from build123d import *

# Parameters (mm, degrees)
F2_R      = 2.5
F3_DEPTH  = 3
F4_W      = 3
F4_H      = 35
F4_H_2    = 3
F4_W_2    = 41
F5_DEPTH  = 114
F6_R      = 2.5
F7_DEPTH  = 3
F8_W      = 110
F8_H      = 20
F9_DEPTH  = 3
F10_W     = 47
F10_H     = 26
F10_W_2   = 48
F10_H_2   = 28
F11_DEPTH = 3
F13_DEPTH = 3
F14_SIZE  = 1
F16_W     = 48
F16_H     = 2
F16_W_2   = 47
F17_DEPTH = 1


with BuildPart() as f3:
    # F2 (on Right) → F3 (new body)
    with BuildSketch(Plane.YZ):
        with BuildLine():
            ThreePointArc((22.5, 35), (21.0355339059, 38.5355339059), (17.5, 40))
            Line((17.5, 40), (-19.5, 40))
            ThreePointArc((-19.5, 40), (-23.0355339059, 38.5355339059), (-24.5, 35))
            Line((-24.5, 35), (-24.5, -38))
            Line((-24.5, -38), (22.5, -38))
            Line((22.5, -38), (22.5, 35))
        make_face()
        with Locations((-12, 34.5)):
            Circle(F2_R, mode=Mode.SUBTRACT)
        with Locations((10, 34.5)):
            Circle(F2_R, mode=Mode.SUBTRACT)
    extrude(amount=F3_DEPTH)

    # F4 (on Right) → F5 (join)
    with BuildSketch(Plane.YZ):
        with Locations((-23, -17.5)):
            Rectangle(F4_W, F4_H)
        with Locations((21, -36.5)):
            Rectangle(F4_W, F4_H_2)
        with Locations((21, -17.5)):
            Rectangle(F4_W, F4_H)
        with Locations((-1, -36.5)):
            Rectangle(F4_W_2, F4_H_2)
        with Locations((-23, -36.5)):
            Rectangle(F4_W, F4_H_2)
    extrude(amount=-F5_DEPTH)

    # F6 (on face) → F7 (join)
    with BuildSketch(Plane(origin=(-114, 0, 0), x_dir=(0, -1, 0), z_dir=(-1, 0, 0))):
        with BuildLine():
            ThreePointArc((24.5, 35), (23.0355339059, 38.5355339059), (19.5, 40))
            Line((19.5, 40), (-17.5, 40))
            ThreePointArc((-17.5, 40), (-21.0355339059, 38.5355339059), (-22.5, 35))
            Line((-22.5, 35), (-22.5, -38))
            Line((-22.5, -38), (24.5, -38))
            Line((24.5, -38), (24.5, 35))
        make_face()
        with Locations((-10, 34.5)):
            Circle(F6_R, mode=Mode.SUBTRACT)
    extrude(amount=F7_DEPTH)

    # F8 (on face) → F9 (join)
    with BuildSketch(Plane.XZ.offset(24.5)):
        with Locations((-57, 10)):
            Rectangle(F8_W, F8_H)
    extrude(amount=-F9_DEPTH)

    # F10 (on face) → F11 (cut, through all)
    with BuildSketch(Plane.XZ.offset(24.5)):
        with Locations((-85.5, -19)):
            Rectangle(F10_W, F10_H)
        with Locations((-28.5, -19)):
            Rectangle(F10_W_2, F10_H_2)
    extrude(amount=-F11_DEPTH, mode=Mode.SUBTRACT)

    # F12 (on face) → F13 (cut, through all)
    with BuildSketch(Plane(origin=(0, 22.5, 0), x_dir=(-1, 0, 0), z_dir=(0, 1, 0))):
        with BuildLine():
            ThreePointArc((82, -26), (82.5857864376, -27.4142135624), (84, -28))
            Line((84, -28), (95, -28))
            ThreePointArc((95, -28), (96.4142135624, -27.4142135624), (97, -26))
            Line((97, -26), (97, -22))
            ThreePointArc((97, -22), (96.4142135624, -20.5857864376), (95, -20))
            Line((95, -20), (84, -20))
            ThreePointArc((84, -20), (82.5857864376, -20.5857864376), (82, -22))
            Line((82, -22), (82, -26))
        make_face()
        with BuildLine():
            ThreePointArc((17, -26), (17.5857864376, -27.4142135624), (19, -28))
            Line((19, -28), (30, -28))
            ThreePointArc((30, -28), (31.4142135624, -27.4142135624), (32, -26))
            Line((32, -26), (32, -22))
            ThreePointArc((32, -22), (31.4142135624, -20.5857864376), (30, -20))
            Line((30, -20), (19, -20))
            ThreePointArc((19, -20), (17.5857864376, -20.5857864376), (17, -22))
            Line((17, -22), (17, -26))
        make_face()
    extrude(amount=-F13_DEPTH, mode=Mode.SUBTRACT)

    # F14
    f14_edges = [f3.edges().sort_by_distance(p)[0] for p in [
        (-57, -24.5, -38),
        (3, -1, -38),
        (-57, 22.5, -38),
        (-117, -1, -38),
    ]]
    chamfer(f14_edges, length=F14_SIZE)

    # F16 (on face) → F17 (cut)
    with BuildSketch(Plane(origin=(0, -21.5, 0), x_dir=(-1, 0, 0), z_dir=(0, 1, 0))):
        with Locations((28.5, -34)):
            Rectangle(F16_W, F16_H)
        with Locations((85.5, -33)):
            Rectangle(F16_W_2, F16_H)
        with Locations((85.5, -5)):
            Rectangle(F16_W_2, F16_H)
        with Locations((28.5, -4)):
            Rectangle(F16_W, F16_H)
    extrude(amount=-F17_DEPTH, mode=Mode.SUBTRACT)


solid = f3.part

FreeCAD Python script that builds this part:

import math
import FreeCAD as App
import Part
import Sketcher
Q = App.Units.Quantity


def edges_at(feature, points):
    """Names of the edges that pass closest to the given points."""
    edges = feature.Shape.Edges
    near = lambda p: min(range(len(edges)), key=lambda i: edges[i].distToShape(Part.Vertex(*p))[0])
    return sorted({f"Edge{near(p) + 1}" for p in points})


def add_polygon(sketch, points):
    """Adds a closed chain of lines whose ends are joined by coincident constraints."""
    first, n = sketch.GeometryCount, len(points)
    for a, b in zip(points, points[1:] + points[:1]):
        sketch.addGeometry(Part.LineSegment(App.Vector(*a, 0), App.Vector(*b, 0)), False)
    for i in range(n):
        sketch.addConstraint(Sketcher.Constraint("Coincident", first + i, 2, first + (i + 1) % n, 1))

doc = App.newDocument("Part")
params = doc.addObject("Spreadsheet::Sheet", "Params")
for row, (alias, value) in enumerate([
    ("sketch1_diameter", "5 mm"),
    ("sketch1_radius", "5 mm"),
    ("sketch1_width", "37 mm"),
    ("sketch1_height", "73 mm"),
    ("pad1_length", "3 mm"),
    ("sketch2_width", "47 mm"),
    ("sketch2_width2", "3 mm"),
    ("sketch2_height", "38 mm"),
    ("sketch2_height2", "35 mm"),
    ("pad2_length", "114 mm"),
    ("sketch3_diameter", "5 mm"),
    ("sketch3_radius", "5 mm"),
    ("sketch3_width", "37 mm"),
    ("sketch3_height", "73 mm"),
    ("pad3_length", "3 mm"),
    ("sketch4_width", "110 mm"),
    ("sketch4_height", "20 mm"),
    ("pad4_length", "3 mm"),
    ("sketch5_width", "47 mm"),
    ("sketch5_width2", "48 mm"),
    ("sketch5_height", "26 mm"),
    ("sketch5_height2", "28 mm"),
    ("pocket1_length", "3 mm"),
    ("sketch6_radius", "2 mm"),
    ("sketch6_width", "11 mm"),
    ("sketch6_height", "4 mm"),
    ("chamfer_size", "1 mm"),
    ("sketch7_width", "48 mm"),
    ("sketch7_width2", "47 mm"),
    ("sketch7_height", "2 mm"),
    ("pocket3_length", "1 mm"),
], start=1):
    params.set(f"A{row}", alias)
    params.set(f"B{row}", "=" + value)
    params.setAlias(f"B{row}", alias)

body = doc.addObject("PartDesign::Body", "Body")

# Sketch on YZ plane
sketch1 = body.newObject("Sketcher::SketchObject", "Sketch")
sketch1.AttachmentSupport = (doc.getObject("YZ_Plane"), [""])
sketch1.MapMode = "FlatFace"
sketch1.addGeometry(Part.ArcOfCircle(Part.Circle(App.Vector(17.5, 35, 0), App.Vector(0, 0, 1), 5), math.radians(0), math.radians(90)), False)
sketch1.addGeometry(Part.LineSegment(App.Vector(17.5, 40, 0), App.Vector(-19.5, 40, 0)), False)
sketch1.addGeometry(Part.ArcOfCircle(Part.Circle(App.Vector(-19.5, 35, 0), App.Vector(0, 0, 1), 5), math.radians(90), math.radians(180)), False)
sketch1.addGeometry(Part.LineSegment(App.Vector(-24.5, 35, 0), App.Vector(-24.5, -38, 0)), False)
sketch1.addGeometry(Part.LineSegment(App.Vector(-24.5, -38, 0), App.Vector(22.5, -38, 0)), False)
sketch1.addGeometry(Part.LineSegment(App.Vector(22.5, -38, 0), App.Vector(22.5, 35, 0)), False)
sketch1.addGeometry(Part.Circle(App.Vector(-12, 34.5, 0), App.Vector(0, 0, 1), 2.5), False)
sketch1.addGeometry(Part.Circle(App.Vector(10, 34.5, 0), App.Vector(0, 0, 1), 2.5), False)
sketch1.addConstraint(Sketcher.Constraint("Tangent", 0, 2, 1, 1))
sketch1.addConstraint(Sketcher.Constraint("Tangent", 1, 2, 2, 1))
sketch1.addConstraint(Sketcher.Constraint("Tangent", 2, 2, 3, 1))
sketch1.addConstraint(Sketcher.Constraint("Coincident", 3, 2, 4, 1))
sketch1.addConstraint(Sketcher.Constraint("Coincident", 4, 2, 5, 1))
sketch1.addConstraint(Sketcher.Constraint("Tangent", 5, 2, 0, 1))
sketch1.addConstraint(Sketcher.Constraint("Horizontal", 1))
sketch1.addConstraint(Sketcher.Constraint("Vertical", 3))
sketch1.addConstraint(Sketcher.Constraint("Horizontal", 4))
sketch1.addConstraint(Sketcher.Constraint("Vertical", 5))
sketch1.addConstraint(Sketcher.Constraint("Equal", 0, 2))
sketch1.addConstraint(Sketcher.Constraint("Equal", 6, 7))
sketch1.addConstraint(Sketcher.Constraint("Horizontal", 6, 3, 7, 3))
sketch1.addConstraint(Sketcher.Constraint("Diameter", 6, Q("5 mm")))
sketch1.addConstraint(Sketcher.Constraint("Radius", 0, Q("5 mm")))
sketch1.addConstraint(Sketcher.Constraint("DistanceX", 1, 2, 1, 1, Q("37 mm")))
sketch1.addConstraint(Sketcher.Constraint("DistanceY", 3, 2, 3, 1, Q("73 mm")))
sketch1.addConstraint(Sketcher.Constraint("DistanceY", -1, 1, 0, 3, Q("35 mm")))
sketch1.addConstraint(Sketcher.Constraint("DistanceX", 6, 3, -1, 1, Q("12 mm")))
sketch1.addConstraint(Sketcher.Constraint("DistanceX", -1, 1, 7, 3, Q("10 mm")))
sketch1.addConstraint(Sketcher.Constraint("DistanceX", -1, 1, 0, 3, Q("17.5 mm")))
sketch1.addConstraint(Sketcher.Constraint("DistanceY", -1, 1, 6, 3, Q("34.5 mm")))
sketch1.setExpression("Constraints[13]", "Params.sketch1_diameter")
sketch1.setExpression("Constraints[14]", "Params.sketch1_radius")
sketch1.setExpression("Constraints[15]", "Params.sketch1_width")
sketch1.setExpression("Constraints[16]", "Params.sketch1_height")
pad1 = body.newObject("PartDesign::Pad", "Pad")
pad1.Profile = sketch1
pad1.setExpression("Length", "Params.pad1_length")

# Sketch on YZ plane
sketch2 = body.newObject("Sketcher::SketchObject", "Sketch001")
sketch2.AttachmentSupport = (doc.getObject("YZ_Plane"), [""])
sketch2.MapMode = "FlatFace"
add_polygon(sketch2, [(-24.5, 0), (-24.5, -38), (22.5, -38), (22.5, 0), (19.5, 0), (19.5, -35), (-21.5, -35), (-21.5, 0)])  # lines 0-7
sketch2.addConstraint(Sketcher.Constraint("Vertical", 0))
sketch2.addConstraint(Sketcher.Constraint("Horizontal", 1))
sketch2.addConstraint(Sketcher.Constraint("Vertical", 2))
sketch2.addConstraint(Sketcher.Constraint("Horizontal", 3))
sketch2.addConstraint(Sketcher.Constraint("Vertical", 4))
sketch2.addConstraint(Sketcher.Constraint("Horizontal", 5))
sketch2.addConstraint(Sketcher.Constraint("Vertical", 6))
sketch2.addConstraint(Sketcher.Constraint("Horizontal", 7))
sketch2.addConstraint(Sketcher.Constraint("PointOnObject", 2, 2, -1))
sketch2.addConstraint(Sketcher.Constraint("PointOnObject", 6, 2, -1))
sketch2.addConstraint(Sketcher.Constraint("Equal", 3, 7))
sketch2.addConstraint(Sketcher.Constraint("DistanceX", 1, 1, 1, 2, Q("47 mm")))
sketch2.addConstraint(Sketcher.Constraint("DistanceX", 3, 2, 3, 1, Q("3 mm")))
sketch2.addConstraint(Sketcher.Constraint("DistanceY", 0, 2, 0, 1, Q("38 mm")))
sketch2.addConstraint(Sketcher.Constraint("DistanceY", 4, 2, 4, 1, Q("35 mm")))
sketch2.addConstraint(Sketcher.Constraint("DistanceX", 0, 2, -1, 1, Q("24.5 mm")))
sketch2.setExpression("Constraints[19]", "Params.sketch2_width")
sketch2.setExpression("Constraints[20]", "Params.sketch2_width2")
sketch2.setExpression("Constraints[21]", "Params.sketch2_height")
sketch2.setExpression("Constraints[22]", "Params.sketch2_height2")
pad2 = body.newObject("PartDesign::Pad", "Pad001")
pad2.Profile = sketch2
pad2.setExpression("Length", "Params.pad2_length")
pad2.Reversed = True

# Sketch on YZ plane
sketch3 = body.newObject("Sketcher::SketchObject", "Sketch002")
sketch3.AttachmentSupport = (doc.getObject("YZ_Plane"), [""])
sketch3.MapMode = "FlatFace"
sketch3.AttachmentOffset = App.Placement(App.Vector(0, 0, -114), App.Rotation())
sketch3.addGeometry(Part.ArcOfCircle(Part.Circle(App.Vector(-19.5, 35, 0), App.Vector(0, 0, 1), 5), math.radians(90), math.radians(180)), False)
sketch3.addGeometry(Part.LineSegment(App.Vector(-19.5, 40, 0), App.Vector(17.5, 40, 0)), False)
sketch3.addGeometry(Part.ArcOfCircle(Part.Circle(App.Vector(17.5, 35, 0), App.Vector(0, 0, 1), 5), math.radians(0), math.radians(90)), False)
sketch3.addGeometry(Part.LineSegment(App.Vector(22.5, 35, 0), App.Vector(22.5, -38, 0)), False)
sketch3.addGeometry(Part.LineSegment(App.Vector(22.5, -38, 0), App.Vector(-24.5, -38, 0)), False)
sketch3.addGeometry(Part.LineSegment(App.Vector(-24.5, -38, 0), App.Vector(-24.5, 35, 0)), False)
sketch3.addGeometry(Part.Circle(App.Vector(10, 34.5, 0), App.Vector(0, 0, 1), 2.5), False)
sketch3.addConstraint(Sketcher.Constraint("Tangent", 0, 1, 1, 1))
sketch3.addConstraint(Sketcher.Constraint("Tangent", 1, 2, 2, 2))
sketch3.addConstraint(Sketcher.Constraint("Tangent", 2, 1, 3, 1))
sketch3.addConstraint(Sketcher.Constraint("Coincident", 3, 2, 4, 1))
sketch3.addConstraint(Sketcher.Constraint("Coincident", 4, 2, 5, 1))
sketch3.addConstraint(Sketcher.Constraint("Tangent", 5, 2, 0, 2))
sketch3.addConstraint(Sketcher.Constraint("Horizontal", 1))
sketch3.addConstraint(Sketcher.Constraint("Vertical", 3))
sketch3.addConstraint(Sketcher.Constraint("Horizontal", 4))
sketch3.addConstraint(Sketcher.Constraint("Vertical", 5))
sketch3.addConstraint(Sketcher.Constraint("Equal", 0, 2))
sketch3.addConstraint(Sketcher.Constraint("Diameter", 6, Q("5 mm")))
sketch3.addConstraint(Sketcher.Constraint("Radius", 0, Q("5 mm")))
sketch3.addConstraint(Sketcher.Constraint("DistanceX", 1, 1, 1, 2, Q("37 mm")))
sketch3.addConstraint(Sketcher.Constraint("DistanceY", 3, 2, 3, 1, Q("73 mm")))
sketch3.addConstraint(Sketcher.Constraint("DistanceY", -1, 1, 0, 3, Q("35 mm")))
sketch3.addConstraint(Sketcher.Constraint("DistanceX", -1, 1, 6, 3, Q("10 mm")))
sketch3.addConstraint(Sketcher.Constraint("DistanceX", 0, 3, -1, 1, Q("19.5 mm")))
sketch3.addConstraint(Sketcher.Constraint("DistanceY", -1, 1, 6, 3, Q("34.5 mm")))
sketch3.setExpression("Constraints[11]", "Params.sketch3_diameter")
sketch3.setExpression("Constraints[12]", "Params.sketch3_radius")
sketch3.setExpression("Constraints[13]", "Params.sketch3_width")
sketch3.setExpression("Constraints[14]", "Params.sketch3_height")
pad3 = body.newObject("PartDesign::Pad", "Pad002")
pad3.Profile = sketch3
pad3.setExpression("Length", "Params.pad3_length")
pad3.Reversed = True

# Sketch on XZ plane
sketch4 = body.newObject("Sketcher::SketchObject", "Sketch003")
sketch4.AttachmentSupport = (doc.getObject("XZ_Plane"), [""])
sketch4.MapMode = "FlatFace"
sketch4.AttachmentOffset = App.Placement(App.Vector(0, 0, 24.5), App.Rotation())
add_polygon(sketch4, [(-112, 20), (-112, 0), (-2, 0), (-2, 20)])  # lines 0-3
sketch4.addConstraint(Sketcher.Constraint("Vertical", 0))
sketch4.addConstraint(Sketcher.Constraint("Horizontal", 1))
sketch4.addConstraint(Sketcher.Constraint("Vertical", 2))
sketch4.addConstraint(Sketcher.Constraint("Horizontal", 3))
sketch4.addConstraint(Sketcher.Constraint("PointOnObject", 0, 2, -1))
sketch4.addConstraint(Sketcher.Constraint("DistanceX", 1, 1, 1, 2, Q("110 mm")))
sketch4.addConstraint(Sketcher.Constraint("DistanceY", 0, 2, 0, 1, Q("20 mm")))
sketch4.addConstraint(Sketcher.Constraint("DistanceX", 0, 2, -1, 1, Q("112 mm")))
sketch4.setExpression("Constraints[9]", "Params.sketch4_width")
sketch4.setExpression("Constraints[10]", "Params.sketch4_height")
pad4 = body.newObject("PartDesign::Pad", "Pad003")
pad4.Profile = sketch4
pad4.setExpression("Length", "Params.pad4_length")
pad4.Reversed = True

# Sketch on XZ plane
sketch5 = body.newObject("Sketcher::SketchObject", "Sketch004")
sketch5.AttachmentSupport = (doc.getObject("XZ_Plane"), [""])
sketch5.MapMode = "FlatFace"
sketch5.AttachmentOffset = App.Placement(App.Vector(0, 0, 24.5), App.Rotation())
add_polygon(sketch5, [(-109, -6), (-109, -32), (-62, -32), (-62, -6)])  # lines 0-3
add_polygon(sketch5, [(-52, -5), (-52, -33), (-4, -33), (-4, -5)])  # lines 4-7
sketch5.addConstraint(Sketcher.Constraint("Vertical", 0))
sketch5.addConstraint(Sketcher.Constraint("Horizontal", 1))
sketch5.addConstraint(Sketcher.Constraint("Vertical", 2))
sketch5.addConstraint(Sketcher.Constraint("Horizontal", 3))
sketch5.addConstraint(Sketcher.Constraint("Vertical", 4))
sketch5.addConstraint(Sketcher.Constraint("Horizontal", 5))
sketch5.addConstraint(Sketcher.Constraint("Vertical", 6))
sketch5.addConstraint(Sketcher.Constraint("Horizontal", 7))
sketch5.addConstraint(Sketcher.Constraint("DistanceX", 1, 1, 1, 2, Q("47 mm")))
sketch5.addConstraint(Sketcher.Constraint("DistanceX", 5, 1, 5, 2, Q("48 mm")))
sketch5.addConstraint(Sketcher.Constraint("DistanceY", 0, 2, 0, 1, Q("26 mm")))
sketch5.addConstraint(Sketcher.Constraint("DistanceY", 4, 2, 4, 1, Q("28 mm")))
sketch5.addConstraint(Sketcher.Constraint("DistanceX", 0, 2, -1, 1, Q("109 mm")))
sketch5.addConstraint(Sketcher.Constraint("DistanceY", 0, 2, -1, 1, Q("32 mm")))
sketch5.addConstraint(Sketcher.Constraint("DistanceY", 4, 2, -1, 1, Q("33 mm")))
sketch5.addConstraint(Sketcher.Constraint("DistanceX", 4, 2, -1, 1, Q("52.5 mm")))
sketch5.setExpression("Constraints[16]", "Params.sketch5_width")
sketch5.setExpression("Constraints[17]", "Params.sketch5_width2")
sketch5.setExpression("Constraints[18]", "Params.sketch5_height")
sketch5.setExpression("Constraints[19]", "Params.sketch5_height2")
pocket1 = body.newObject("PartDesign::Pocket", "Pocket")
pocket1.Profile = sketch5
pocket1.setExpression("Length", "Params.pocket1_length")

# Sketch on XZ plane
sketch6 = body.newObject("Sketcher::SketchObject", "Sketch005")
sketch6.AttachmentSupport = (doc.getObject("XZ_Plane"), [""])
sketch6.MapMode = "FlatFace"
sketch6.AttachmentOffset = App.Placement(App.Vector(0, 0, -22.5), App.Rotation())
sketch6.addGeometry(Part.ArcOfCircle(Part.Circle(App.Vector(-84, -26, 0), App.Vector(0, 0, 1), 2), math.radians(-90), math.radians(0)), False)
sketch6.addGeometry(Part.LineSegment(App.Vector(-84, -28, 0), App.Vector(-95, -28, 0)), False)
sketch6.addGeometry(Part.ArcOfCircle(Part.Circle(App.Vector(-95, -26, 0), App.Vector(0, 0, 1), 2), math.radians(180), math.radians(270)), False)
sketch6.addGeometry(Part.LineSegment(App.Vector(-97, -26, 0), App.Vector(-97, -22, 0)), False)
sketch6.addGeometry(Part.ArcOfCircle(Part.Circle(App.Vector(-95, -22, 0), App.Vector(0, 0, 1), 2), math.radians(90), math.radians(180)), False)
sketch6.addGeometry(Part.LineSegment(App.Vector(-95, -20, 0), App.Vector(-84, -20, 0)), False)
sketch6.addGeometry(Part.ArcOfCircle(Part.Circle(App.Vector(-84, -22, 0), App.Vector(0, 0, 1), 2), math.radians(0), math.radians(90)), False)
sketch6.addGeometry(Part.LineSegment(App.Vector(-82, -22, 0), App.Vector(-82, -26, 0)), False)
sketch6.addGeometry(Part.ArcOfCircle(Part.Circle(App.Vector(-19, -26, 0), App.Vector(0, 0, 1), 2), math.radians(-90), math.radians(0)), False)
sketch6.addGeometry(Part.LineSegment(App.Vector(-19, -28, 0), App.Vector(-30, -28, 0)), False)
sketch6.addGeometry(Part.ArcOfCircle(Part.Circle(App.Vector(-30, -26, 0), App.Vector(0, 0, 1), 2), math.radians(180), math.radians(270)), False)
sketch6.addGeometry(Part.LineSegment(App.Vector(-32, -26, 0), App.Vector(-32, -22, 0)), False)
sketch6.addGeometry(Part.ArcOfCircle(Part.Circle(App.Vector(-30, -22, 0), App.Vector(0, 0, 1), 2), math.radians(90), math.radians(180)), False)
sketch6.addGeometry(Part.LineSegment(App.Vector(-30, -20, 0), App.Vector(-19, -20, 0)), False)
sketch6.addGeometry(Part.ArcOfCircle(Part.Circle(App.Vector(-19, -22, 0), App.Vector(0, 0, 1), 2), math.radians(0), math.radians(90)), False)
sketch6.addGeometry(Part.LineSegment(App.Vector(-17, -22, 0), App.Vector(-17, -26, 0)), False)
sketch6.addConstraint(Sketcher.Constraint("Tangent", 0, 1, 1, 1))
sketch6.addConstraint(Sketcher.Constraint("Tangent", 1, 2, 2, 2))
sketch6.addConstraint(Sketcher.Constraint("Tangent", 2, 1, 3, 1))
sketch6.addConstraint(Sketcher.Constraint("Tangent", 3, 2, 4, 2))
sketch6.addConstraint(Sketcher.Constraint("Tangent", 4, 1, 5, 1))
sketch6.addConstraint(Sketcher.Constraint("Tangent", 5, 2, 6, 2))
sketch6.addConstraint(Sketcher.Constraint("Tangent", 6, 1, 7, 1))
sketch6.addConstraint(Sketcher.Constraint("Tangent", 7, 2, 0, 2))
sketch6.addConstraint(Sketcher.Constraint("Tangent", 8, 1, 9, 1))
sketch6.addConstraint(Sketcher.Constraint("Tangent", 9, 2, 10, 2))
sketch6.addConstraint(Sketcher.Constraint("Tangent", 10, 1, 11, 1))
sketch6.addConstraint(Sketcher.Constraint("Tangent", 11, 2, 12, 2))
sketch6.addConstraint(Sketcher.Constraint("Tangent", 12, 1, 13, 1))
sketch6.addConstraint(Sketcher.Constraint("Tangent", 13, 2, 14, 2))
sketch6.addConstraint(Sketcher.Constraint("Tangent", 14, 1, 15, 1))
sketch6.addConstraint(Sketcher.Constraint("Tangent", 15, 2, 8, 2))
sketch6.addConstraint(Sketcher.Constraint("Horizontal", 1))
sketch6.addConstraint(Sketcher.Constraint("Vertical", 3))
sketch6.addConstraint(Sketcher.Constraint("Horizontal", 5))
sketch6.addConstraint(Sketcher.Constraint("Vertical", 7))
sketch6.addConstraint(Sketcher.Constraint("Horizontal", 9))
sketch6.addConstraint(Sketcher.Constraint("Vertical", 11))
sketch6.addConstraint(Sketcher.Constraint("Horizontal", 13))
sketch6.addConstraint(Sketcher.Constraint("Vertical", 15))
sketch6.addConstraint(Sketcher.Constraint("Equal", 0, 2))
sketch6.addConstraint(Sketcher.Constraint("Equal", 2, 4))
sketch6.addConstraint(Sketcher.Constraint("Equal", 4, 6))
sketch6.addConstraint(Sketcher.Constraint("Equal", 6, 8))
sketch6.addConstraint(Sketcher.Constraint("Equal", 8, 10))
sketch6.addConstraint(Sketcher.Constraint("Equal", 10, 12))
sketch6.addConstraint(Sketcher.Constraint("Equal", 12, 14))
sketch6.addConstraint(Sketcher.Constraint("Horizontal", 2, 3, 8, 3))
sketch6.addConstraint(Sketcher.Constraint("Horizontal", 6, 3, 12, 3))
sketch6.addConstraint(Sketcher.Constraint("Equal", 5, 9))
sketch6.addConstraint(Sketcher.Constraint("Radius", 0, Q("2 mm")))
sketch6.addConstraint(Sketcher.Constraint("DistanceX", 1, 2, 1, 1, Q("11 mm")))
sketch6.addConstraint(Sketcher.Constraint("DistanceY", 3, 1, 3, 2, Q("4 mm")))
sketch6.addConstraint(Sketcher.Constraint("DistanceX", 0, 3, -1, 1, Q("84 mm")))
sketch6.addConstraint(Sketcher.Constraint("DistanceY", 0, 3, -1, 1, Q("26 mm")))
sketch6.addConstraint(Sketcher.Constraint("DistanceX", 8, 3, -1, 1, Q("19 mm")))
sketch6.setExpression("Constraints[34]", "Params.sketch6_radius")
sketch6.setExpression("Constraints[35]", "Params.sketch6_width")
sketch6.setExpression("Constraints[36]", "Params.sketch6_height")
pocket2 = body.newObject("PartDesign::Pocket", "Pocket001")
pocket2.Profile = sketch6
pocket2.Type = "ThroughAll"
pocket2.Reversed = True
doc.recompute()

chamfer = body.newObject("PartDesign::Chamfer", "Chamfer")
chamfer.Base = (pocket2, edges_at(pocket2, [
    (-57, -24.5, -38),
    (3, -1, -38),
    (-57, 22.5, -38),
    (-117, -1, -38),
]))
chamfer.setExpression("Size", "Params.chamfer_size")

# Sketch on XZ plane
sketch7 = body.newObject("Sketcher::SketchObject", "Sketch006")
sketch7.AttachmentSupport = (doc.getObject("XZ_Plane"), [""])
sketch7.MapMode = "FlatFace"
sketch7.AttachmentOffset = App.Placement(App.Vector(0, 0, 21.5), App.Rotation())
add_polygon(sketch7, [(-4.5, -33), (-4.5, -35), (-52.5, -35), (-52.5, -33)])  # lines 0-3
add_polygon(sketch7, [(-62, -32), (-62, -34), (-109, -34), (-109, -32)])  # lines 4-7
add_polygon(sketch7, [(-62, -4), (-62, -6), (-109, -6), (-109, -4)])  # lines 8-11
add_polygon(sketch7, [(-4.5, -3), (-4.5, -5), (-52.5, -5), (-52.5, -3)])  # lines 12-15
sketch7.addConstraint(Sketcher.Constraint("Vertical", 0))
sketch7.addConstraint(Sketcher.Constraint("Horizontal", 1))
sketch7.addConstraint(Sketcher.Constraint("Vertical", 2))
sketch7.addConstraint(Sketcher.Constraint("Horizontal", 3))
sketch7.addConstraint(Sketcher.Constraint("Vertical", 4))
sketch7.addConstraint(Sketcher.Constraint("Horizontal", 5))
sketch7.addConstraint(Sketcher.Constraint("Vertical", 6))
sketch7.addConstraint(Sketcher.Constraint("Horizontal", 7))
sketch7.addConstraint(Sketcher.Constraint("Vertical", 8))
sketch7.addConstraint(Sketcher.Constraint("Horizontal", 9))
sketch7.addConstraint(Sketcher.Constraint("Vertical", 10))
sketch7.addConstraint(Sketcher.Constraint("Horizontal", 11))
sketch7.addConstraint(Sketcher.Constraint("Vertical", 12))
sketch7.addConstraint(Sketcher.Constraint("Horizontal", 13))
sketch7.addConstraint(Sketcher.Constraint("Vertical", 14))
sketch7.addConstraint(Sketcher.Constraint("Horizontal", 15))
sketch7.addConstraint(Sketcher.Constraint("Vertical", 7, 2, 8, 2))
sketch7.addConstraint(Sketcher.Constraint("Vertical", 6, 2, 9, 2))
sketch7.addConstraint(Sketcher.Constraint("Vertical", 3, 2, 12, 2))
sketch7.addConstraint(Sketcher.Constraint("Vertical", 2, 2, 13, 2))
sketch7.addConstraint(Sketcher.Constraint("Equal", 2, 4))
sketch7.addConstraint(Sketcher.Constraint("Equal", 6, 8))
sketch7.addConstraint(Sketcher.Constraint("Equal", 10, 12))
sketch7.addConstraint(Sketcher.Constraint("DistanceX", 1, 2, 1, 1, Q("48 mm")))
sketch7.addConstraint(Sketcher.Constraint("DistanceX", 5, 2, 5, 1, Q("47 mm")))
sketch7.addConstraint(Sketcher.Constraint("DistanceY", 0, 2, 0, 1, Q("2 mm")))
sketch7.addConstraint(Sketcher.Constraint("DistanceY", 0, 2, -1, 1, Q("35 mm")))
sketch7.addConstraint(Sketcher.Constraint("DistanceX", 4, 2, -1, 1, Q("62 mm")))
sketch7.addConstraint(Sketcher.Constraint("DistanceY", 4, 2, -1, 1, Q("34 mm")))
sketch7.addConstraint(Sketcher.Constraint("DistanceY", 8, 2, -1, 1, Q("6 mm")))
sketch7.addConstraint(Sketcher.Constraint("DistanceY", 12, 2, -1, 1, Q("5 mm")))
sketch7.addConstraint(Sketcher.Constraint("DistanceX", 0, 2, -1, 1, Q("4.5 mm")))
sketch7.setExpression("Constraints[39]", "Params.sketch7_width")
sketch7.setExpression("Constraints[40]", "Params.sketch7_width2")
sketch7.setExpression("Constraints[41]", "Params.sketch7_height")
pocket3 = body.newObject("PartDesign::Pocket", "Pocket002")
pocket3.Profile = sketch7
pocket3.setExpression("Length", "Params.pocket3_length")
pocket3.Reversed = True

doc.recompute()
